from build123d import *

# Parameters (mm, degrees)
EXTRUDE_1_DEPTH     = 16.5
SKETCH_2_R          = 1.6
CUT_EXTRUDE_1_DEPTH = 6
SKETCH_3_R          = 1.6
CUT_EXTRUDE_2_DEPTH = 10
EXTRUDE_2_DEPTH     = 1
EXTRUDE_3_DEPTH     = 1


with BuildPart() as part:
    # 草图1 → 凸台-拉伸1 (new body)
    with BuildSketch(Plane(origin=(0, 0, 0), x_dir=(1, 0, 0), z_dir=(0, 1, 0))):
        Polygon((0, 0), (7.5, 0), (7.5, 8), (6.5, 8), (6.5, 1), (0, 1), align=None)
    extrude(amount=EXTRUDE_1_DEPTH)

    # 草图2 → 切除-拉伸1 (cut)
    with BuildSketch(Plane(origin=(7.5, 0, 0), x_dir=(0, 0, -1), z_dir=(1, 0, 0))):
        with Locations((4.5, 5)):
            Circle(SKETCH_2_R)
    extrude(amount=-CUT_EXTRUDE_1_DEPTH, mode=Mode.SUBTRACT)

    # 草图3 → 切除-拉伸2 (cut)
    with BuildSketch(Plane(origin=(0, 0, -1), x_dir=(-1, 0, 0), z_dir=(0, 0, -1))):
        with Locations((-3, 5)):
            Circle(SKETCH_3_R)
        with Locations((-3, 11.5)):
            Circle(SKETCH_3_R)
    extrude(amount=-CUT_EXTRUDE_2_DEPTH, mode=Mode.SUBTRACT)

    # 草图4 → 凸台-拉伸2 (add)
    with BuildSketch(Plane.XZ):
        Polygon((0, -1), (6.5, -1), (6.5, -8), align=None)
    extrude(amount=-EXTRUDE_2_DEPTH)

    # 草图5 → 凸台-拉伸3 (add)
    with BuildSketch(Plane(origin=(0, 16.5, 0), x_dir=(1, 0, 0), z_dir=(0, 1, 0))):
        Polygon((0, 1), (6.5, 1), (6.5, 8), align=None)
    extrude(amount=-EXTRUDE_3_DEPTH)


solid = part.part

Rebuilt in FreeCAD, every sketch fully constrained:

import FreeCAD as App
import Part
import Sketcher


def add_polygon(sketch, points):
    """Adds a closed chain of lines whose ends are joined by coincident constraints."""
    first, n = sketch.GeometryCount, len(points)
    for a, b in zip(points, points[1:] + points[:1]):
        sketch.addGeometry(Part.LineSegment(App.Vector(*a, 0), App.Vector(*b, 0)), False)
    for i in range(n):
        sketch.addConstraint(Sketcher.Constraint("Coincident", first + i, 2, first + (i + 1) % n, 1))

doc = App.newDocument("Part")
body = doc.addObject("PartDesign::Body", "Body")

# Sketch on XZ plane
sketch1 = body.newObject("Sketcher::SketchObject", "Sketch")
sketch1.AttachmentSupport = (doc.getObject("XZ_Plane"), [""])
sketch1.MapMode = "FlatFace"
add_polygon(sketch1, [(0, 0), (7.5, 0), (7.5, -8), (6.5, -8), (6.5, -1), (0, -1)])  # lines 0-5
sketch1.addConstraint(Sketcher.Constraint("Horizontal", 0))
sketch1.addConstraint(Sketcher.Constraint("Vertical", 1))
sketch1.addConstraint(Sketcher.Constraint("Horizontal", 2))
sketch1.addConstraint(Sketcher.Constraint("Vertical", 3))
sketch1.addConstraint(Sketcher.Constraint("Horizontal", 4))
sketch1.addConstraint(Sketcher.Constraint("Vertical", 5))
sketch1.addConstraint(Sketcher.Constraint("Coincident", 5, 2, -1, 1))
sketch1.addConstraint(Sketcher.Constraint("Equal", 2, 5))
sketch1.addConstraint(Sketcher.Constraint("DistanceX", 2, 2, 2, 1, 1.0))
sketch1.addConstraint(Sketcher.Constraint("DistanceY", 1, 2, 1, 1, 8.0))
sketch1.addConstraint(Sketcher.Constraint("DistanceX", 0, 1, 0, 2, 7.5))
pad1 = body.newObject("PartDesign::Pad", "Pad")
pad1.Profile = sketch1
pad1.Length = 16.5
pad1.Reversed = True

# Sketch on YZ plane
sketch2 = body.newObject("Sketcher::SketchObject", "Sketch001")
sketch2.AttachmentSupport = (doc.getObject("YZ_Plane"), [""])
sketch2.MapMode = "FlatFace"
sketch2.AttachmentOffset = App.Placement(App.Vector(0, 0, 7.5), App.Rotation())
sketch2.addGeometry(Part.Circle(App.Vector(5, -4.5, 0), App.Vector(0, 0, 1), 1.6), False)
sketch2.addConstraint(Sketcher.Constraint("Diameter", 0, 3.2))
sketch2.addConstraint(Sketcher.Constraint("DistanceX", -1, 1, 0, 3, 5.0))
sketch2.addConstraint(Sketcher.Constraint("DistanceY", 0, 3, -1, 1, 4.5))
pocket1 = body.newObject("PartDesign::Pocket", "Pocket")
pocket1.Profile = sketch2
pocket1.Length = 6

# Sketch on XY plane
sketch3 = body.newObject("Sketcher::SketchObject", "Sketch002")
sketch3.AttachmentSupport = (doc.getObject("XY_Plane"), [""])
sketch3.MapMode = "FlatFace"
sketch3.AttachmentOffset = App.Placement(App.Vector(0, 0, -1), App.Rotation())
sketch3.addGeometry(Part.Circle(App.Vector(3, 5, 0), App.Vector(0, 0, 1), 1.6), False)
sketch3.addGeometry(Part.Circle(App.Vector(3, 11.5, 0), App.Vector(0, 0, 1), 1.6), False)
sketch3.addConstraint(Sketcher.Constraint("Equal", 0, 1))
sketch3.addConstraint(Sketcher.Constraint("Vertical", 0, 3, 1, 3))
sketch3.addConstraint(Sketcher.Constraint("Diameter", 0, 3.2))
sketch3.addConstraint(Sketcher.Constraint("DistanceX", -1, 1, 0, 3, 3.0))
sketch3.addConstraint(Sketcher.Constraint("DistanceY", -1, 1, 0, 3, 5.0))
sketch3.addConstraint(Sketcher.Constraint("DistanceY", -1, 1, 1, 3, 11.5))
pocket2 = body.newObject("PartDesign::Pocket", "Pocket001")
pocket2.Profile = sketch3
pocket2.Length = 10
pocket2.Reversed = True

# Sketch on XZ plane
sketch4 = body.newObject("Sketcher::SketchObject", "Sketch003")
sketch4.AttachmentSupport = (doc.getObject("XZ_Plane"), [""])
sketch4.MapMode = "FlatFace"
add_polygon(sketch4, [(6, -1), (0, -1), (6, -8)])  # lines 0-2
sketch4.addConstraint(Sketcher.Constraint("Horizontal", 0))
sketch4.addConstraint(Sketcher.Constraint("Vertical", 2))
sketch4.addConstraint(Sketcher.Constraint("PointOnObject", 0, 2, -2))
sketch4.addConstraint(Sketcher.Constraint("DistanceY", 2, 1, 2, 2, 7.0))
sketch4.addConstraint(Sketcher.Constraint("DistanceX", 0, 2, 0, 1, 6.5))
sketch4.addConstraint(Sketcher.Constraint("DistanceY", 0, 2, -1, 1, 1.0))
pad2 = body.newObject("PartDesign::Pad", "Pad001")
pad2.Profile = sketch4
pad2.Length = 1
pad2.Reversed = True

# Sketch on XZ plane
sketch5 = body.newObject("Sketcher::SketchObject", "Sketch004")
sketch5.AttachmentSupport = (doc.getObject("XZ_Plane"), [""])
sketch5.MapMode = "FlatFace"
sketch5.AttachmentOffset = App.Placement(App.Vector(0, 0, -16.5), App.Rotation())
add_polygon(sketch5, [(0, -1), (6, -1), (6, -8)])  # lines 0-2
sketch5.addConstraint(Sketcher.Constraint("Horizontal", 0))
sketch5.addConstraint(Sketcher.Constraint("Vertical", 1))
sketch5.addConstraint(Sketcher.Constraint("PointOnObject", 2, 2, -2))
sketch5.addConstraint(Sketcher.Constraint("DistanceY", 1, 2, 1, 1, 7.0))
sketch5.addConstraint(Sketcher.Constraint("DistanceX", 0, 1, 0, 2, 6.5))
sketch5.addConstraint(Sketcher.Constraint("DistanceY", 0, 2, -1, 1, 1.0))
pad3 = body.newObject("PartDesign::Pad", "Pad002")
pad3.Profile = sketch5
pad3.Length = 1

doc.recompute()
